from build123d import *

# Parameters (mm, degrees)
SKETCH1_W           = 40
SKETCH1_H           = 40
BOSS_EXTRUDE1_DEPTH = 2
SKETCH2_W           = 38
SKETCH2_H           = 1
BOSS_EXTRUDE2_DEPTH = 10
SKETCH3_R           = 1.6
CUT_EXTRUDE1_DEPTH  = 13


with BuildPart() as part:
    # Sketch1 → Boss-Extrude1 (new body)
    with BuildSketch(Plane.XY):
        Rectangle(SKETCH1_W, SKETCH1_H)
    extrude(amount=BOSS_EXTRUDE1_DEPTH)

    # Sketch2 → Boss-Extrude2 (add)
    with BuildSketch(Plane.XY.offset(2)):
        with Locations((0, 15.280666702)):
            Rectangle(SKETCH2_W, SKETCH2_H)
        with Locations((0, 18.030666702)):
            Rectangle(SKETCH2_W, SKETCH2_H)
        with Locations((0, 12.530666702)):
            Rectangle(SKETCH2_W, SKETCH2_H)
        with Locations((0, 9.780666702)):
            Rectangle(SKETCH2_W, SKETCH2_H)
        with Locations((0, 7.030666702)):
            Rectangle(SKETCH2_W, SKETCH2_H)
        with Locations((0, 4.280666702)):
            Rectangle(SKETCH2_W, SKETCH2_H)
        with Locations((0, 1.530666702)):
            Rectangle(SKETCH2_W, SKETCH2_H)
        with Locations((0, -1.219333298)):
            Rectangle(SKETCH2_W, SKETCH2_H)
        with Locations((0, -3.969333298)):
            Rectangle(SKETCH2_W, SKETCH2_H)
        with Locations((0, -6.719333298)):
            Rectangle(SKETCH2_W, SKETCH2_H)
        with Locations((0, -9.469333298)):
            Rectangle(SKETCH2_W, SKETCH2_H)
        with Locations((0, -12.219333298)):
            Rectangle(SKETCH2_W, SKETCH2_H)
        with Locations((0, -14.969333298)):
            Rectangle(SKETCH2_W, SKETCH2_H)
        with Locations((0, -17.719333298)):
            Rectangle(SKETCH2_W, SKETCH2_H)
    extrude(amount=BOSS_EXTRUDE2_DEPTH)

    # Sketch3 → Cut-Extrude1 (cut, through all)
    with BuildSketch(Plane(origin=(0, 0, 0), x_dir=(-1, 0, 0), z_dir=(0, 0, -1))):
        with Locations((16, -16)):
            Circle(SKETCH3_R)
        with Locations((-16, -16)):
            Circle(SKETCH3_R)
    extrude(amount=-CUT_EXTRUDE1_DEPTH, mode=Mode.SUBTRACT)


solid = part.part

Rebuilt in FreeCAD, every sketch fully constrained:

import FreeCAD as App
import Part
import Sketcher
Q = App.Units.Quantity


def add_polygon(sketch, points):
    """Adds a closed chain of lines whose ends are joined by coincident constraints."""
    first, n = sketch.GeometryCount, len(points)
    for a, b in zip(points, points[1:] + points[:1]):
        sketch.addGeometry(Part.LineSegment(App.Vector(*a, 0), App.Vector(*b, 0)), False)
    for i in range(n):
        sketch.addConstraint(Sketcher.Constraint("Coincident", first + i, 2, first + (i + 1) % n, 1))

doc = App.newDocument("Part")
params = doc.addObject("Spreadsheet::Sheet", "Params")
for row, (alias, value) in enumerate([
    ("sketch1_width", "40 mm"),
    ("pad1_length", "2 mm"),
    ("sketch2_width", "38 mm"),
    ("sketch2_height", "1 mm"),
    ("pad2_length", "10 mm"),
    ("sketch3_diameter", "3.2 mm"),
], start=1):
    params.set(f"A{row}", alias)
    params.set(f"B{row}", "=" + value)
    params.setAlias(f"B{row}", alias)

body = doc.addObject("PartDesign::Body", "Body")

# Sketch on XY plane
sketch1 = doc.addObject("Sketcher::SketchObject", "Sketch")
body.addObject(sketch1)
sketch1.AttachmentSupport = (doc.XY_Plane, [""])
sketch1.MapMode = "FlatFace"
add_polygon(sketch1, [(-20, 20), (-20, -20), (20, -20), (20, 20)])  # lines 0-3
sketch1.addConstraint([
    Sketcher.Constraint("Vertical", 0),
    Sketcher.Constraint("Horizontal", 1),
    Sketcher.Constraint("Vertical", 2),
    Sketcher.Constraint("Horizontal", 3),
    Sketcher.Constraint("Symmetric", 0, 2, 2, 2, -1, 1),
    Sketcher.Constraint("Equal", 3, 0),
    Sketcher.Constraint("DistanceX", 1, 1, 1, 2, Q("40 mm")),
])
sketch1.setExpression("Constraints[10]", "Params.sketch1_width")
pad1 = doc.addObject("PartDesign::Pad", "Pad")
body.addObject(pad1)
pad1.Profile = sketch1
pad1.setExpression("Length", "Params.pad1_length")

# Sketch on XY plane
sketch2 = doc.addObject("Sketcher::SketchObject", "Sketch001")
body.addObject(sketch2)
sketch2.AttachmentSupport = (doc.XY_Plane, [""])
sketch2.MapMode = "FlatFace"
sketch2.AttachmentOffset = App.Placement(App.Vector(0, 0, 2), App.Rotation())
add_polygon(sketch2, [(-19, 15.8), (-19, 14.8), (19, 14.8), (19, 15.8)])  # lines 0-3
add_polygon(sketch2, [(-19, 18.5), (-19, 17.5), (19, 17.5), (19, 18.5)])  # lines 4-7
add_polygon(sketch2, [(-19, 13), (-19, 12), (19, 12), (19, 13)])  # lines 8-11
add_polygon(sketch2, [(-19, 10.3), (-19, 9.3), (19, 9.3), (19, 10.3)])  # lines 12-15
add_polygon(sketch2, [(-19, 7.5), (-19, 6.5), (19, 6.5), (19, 7.5)])  # lines 16-19
add_polygon(sketch2, [(-19, 4.8), (-19, 3.8), (19, 3.8), (19, 4.8)])  # lines 20-23
add_polygon(sketch2, [(-19, 2), (-19, 1), (19, 1), (19, 2)])  # lines 24-27
add_polygon(sketch2, [(-19, -0.7), (-19, -1.7), (19, -1.7), (19, -0.7)])  # lines 28-31
add_polygon(sketch2, [(-19, -3.5), (-19, -4.5), (19, -4.5), (19, -3.5)])  # lines 32-35
add_polygon(sketch2, [(-19, -6.2), (-19, -7.2), (19, -7.2), (19, -6.2)])  # lines 36-39
add_polygon(sketch2, [(-19, -9), (-19, -10), (19, -10), (19, -9)])  # lines 40-43
add_polygon(sketch2, [(-19, -11.7), (-19, -12.7), (19, -12.7), (19, -11.7)])  # lines 44-47
add_polygon(sketch2, [(-19, -14.5), (-19, -15.5), (19, -15.5), (19, -14.5)])  # lines 48-51
add_polygon(sketch2, [(-19, -17.2), (-19, -18.2), (19, -18.2), (19, -17.2)])  # lines 52-55
sketch2.addConstraint([
    Sketcher.Constraint("Vertical", 0),
    Sketcher.Constraint("Horizontal", 1),
    Sketcher.Constraint("Vertical", 2),
    Sketcher.Constraint("Horizontal", 3),
    Sketcher.Constraint("Vertical", 4),
    Sketcher.Constraint("Horizontal", 5),
    Sketcher.Constraint("Vertical", 6),
    Sketcher.Constraint("Horizontal", 7),
    Sketcher.Constraint("Vertical", 8),
    Sketcher.Constraint("Horizontal", 9),
    Sketcher.Constraint("Vertical", 10),
    Sketcher.Constraint("Horizontal", 11),
    Sketcher.Constraint("Vertical", 12),
    Sketcher.Constraint("Horizontal", 13),
    Sketcher.Constraint("Vertical", 14),
    Sketcher.Constraint("Horizontal", 15),
    Sketcher.Constraint("Vertical", 16),
    Sketcher.Constraint("Horizontal", 17),
    Sketcher.Constraint("Vertical", 18),
    Sketcher.Constraint("Horizontal", 19),
    Sketcher.Constraint("Vertical", 20),
    Sketcher.Constraint("Horizontal", 21),
    Sketcher.Constraint("Vertical", 22),
    Sketcher.Constraint("Horizontal", 23),
    Sketcher.Constraint("Vertical", 24),
    Sketcher.Constraint("Horizontal", 25),
    Sketcher.Constraint("Vertical", 26),
    Sketcher.Constraint("Horizontal", 27),
    Sketcher.Constraint("Vertical", 28),
    Sketcher.Constraint("Horizontal", 29),
    Sketcher.Constraint("Vertical", 30),
    Sketcher.Constraint("Horizontal", 31),
    Sketcher.Constraint("Vertical", 32),
    Sketcher.Constraint("Horizontal", 33),
    Sketcher.Constraint("Vertical", 34),
    Sketcher.Constraint("Horizontal", 35),
    Sketcher.Constraint("Vertical", 36),
    Sketcher.Constraint("Horizontal", 37),
    Sketcher.Constraint("Vertical", 38),
    Sketcher.Constraint("Horizontal", 39),
    Sketcher.Constraint("Vertical", 40),
    Sketcher.Constraint("Horizontal", 41),
    Sketcher.Constraint("Vertical", 42),
    Sketcher.Constraint("Horizontal", 43),
    Sketcher.Constraint("Vertical", 44),
    Sketcher.Constraint("Horizontal", 45),
    Sketcher.Constraint("Vertical", 46),
    Sketcher.Constraint("Horizontal", 47),
    Sketcher.Constraint("Vertical", 48),
    Sketcher.Constraint("Horizontal", 49),
    Sketcher.Constraint("Vertical", 50),
    Sketcher.Constraint("Horizontal", 51),
    Sketcher.Constraint("Vertical", 52),
    Sketcher.Constraint("Horizontal", 53),
    Sketcher.Constraint("Vertical", 54),
    Sketcher.Constraint("Horizontal", 55),
    Sketcher.Constraint("Vertical", 3, 2, 4, 2),
    Sketcher.Constraint("Vertical", 2, 2, 5, 2),
    Sketcher.Constraint("Vertical", 7, 2, 8, 2),
    Sketcher.Constraint("Vertical", 6, 2, 9, 2),
    Sketcher.Constraint("Vertical", 11, 2, 12, 2),
    Sketcher.Constraint("Vertical", 10, 2, 13, 2),
    Sketcher.Constraint("Vertical", 15, 2, 16, 2),
    Sketcher.Constraint("Vertical", 14, 2, 17, 2),
    Sketcher.Constraint("Vertical", 19, 2, 20, 2),
    Sketcher.Constraint("Vertical", 18, 2, 21, 2),
    Sketcher.Constraint("Vertical", 23, 2, 24, 2),
    Sketcher.Constraint("Vertical", 22, 2, 25, 2),
    Sketcher.Constraint("Vertical", 27, 2, 28, 2),
    Sketcher.Constraint("Vertical", 26, 2, 29, 2),
    Sketcher.Constraint("Vertical", 31, 2, 32, 2),
    Sketcher.Constraint("Vertical", 30, 2, 33, 2),
    Sketcher.Constraint("Vertical", 35, 2, 36, 2),
    Sketcher.Constraint("Vertical", 34, 2, 37, 2),
    Sketcher.Constraint("Vertical", 39, 2, 40, 2),
    Sketcher.Constraint("Vertical", 38, 2, 41, 2),
    Sketcher.Constraint("Vertical", 43, 2, 44, 2),
    Sketcher.Constraint("Vertical", 42, 2, 45, 2),
    Sketcher.Constraint("Vertical", 47, 2, 48, 2),
    Sketcher.Constraint("Vertical", 46, 2, 49, 2),
    Sketcher.Constraint("Vertical", 51, 2, 52, 2),
    Sketcher.Constraint("Vertical", 50, 2, 53, 2),
    Sketcher.Constraint("Equal", 2, 4),
    Sketcher.Constraint("Equal", 6, 8),
    Sketcher.Constraint("Equal", 10, 12),
    Sketcher.Constraint("Equal", 14, 16),
    Sketcher.Constraint("Equal", 18, 20),
    Sketcher.Constraint("Equal", 22, 24),
    Sketcher.Constraint("Equal", 26, 28),
    Sketcher.Constraint("Equal", 30, 32),
    Sketcher.Constraint("Equal", 34, 36),
    Sketcher.Constraint("Equal", 38, 40),
    Sketcher.Constraint("Equal", 42, 44),
    Sketcher.Constraint("Equal", 46, 48),
    Sketcher.Constraint("Equal", 50, 52),
    Sketcher.Constraint("DistanceX", 1, 1, 1, 2, Q("38 mm")),
    Sketcher.Constraint("DistanceY", 0, 2, 0, 1, Q("1 mm")),
    Sketcher.Constraint("DistanceX", 0, 2, -1, 1, Q("19 mm")),
    Sketcher.Constraint("DistanceY", 8, 2, 4, 2, Q("5.5 mm")),
    Sketcher.Constraint("DistanceY", 12, 2, 0, 2, Q("5.5 mm")),
    Sketcher.Constraint("DistanceY", 16, 2, 8, 2, Q("5.5 mm")),
    Sketcher.Constraint("DistanceY", 20, 2, 12, 2, Q("5.5 mm")),
    Sketcher.Constraint("DistanceY", 24, 2, 16, 2, Q("5.5 mm")),
    Sketcher.Constraint("DistanceY", 28, 2, 20, 2, Q("5.5 mm")),
    Sketcher.Constraint("DistanceY", 32, 2, 24, 2, Q("5.5 mm")),
    Sketcher.Constraint("DistanceY", 36, 2, 28, 2, Q("5.5 mm")),
    Sketcher.Constraint("DistanceY", 40, 2, 32, 2, Q("5.5 mm")),
    Sketcher.Constraint("DistanceY", 44, 2, 36, 2, Q("5.5 mm")),
    Sketcher.Constraint("DistanceY", 48, 2, 40, 2, Q("5.5 mm")),
    Sketcher.Constraint("DistanceY", 52, 2, 44, 2, Q("5.5 mm")),
    Sketcher.Constraint("DistanceY", 3, 2, 4, 2, Q("1.75 mm")),
    Sketcher.Constraint("DistanceY", -1, 1, 0, 2, Q("14.780667 mm")),
])
sketch2.setExpression("Constraints[151]", "Params.sketch2_width")
sketch2.setExpression("Constraints[152]", "Params.sketch2_height")
pad2 = doc.addObject("PartDesign::Pad", "Pad001")
body.addObject(pad2)
pad2.Profile = sketch2
pad2.setExpression("Length", "Params.pad2_length")

# Sketch on XY plane
sketch3 = doc.addObject("Sketcher::SketchObject", "Sketch002")
body.addObject(sketch3)
sketch3.AttachmentSupport = (doc.XY_Plane, [""])
sketch3.MapMode = "FlatFace"
sketch3.addGeometry([
    Part.Circle(App.Vector(-16, -16, 0), App.Vector(0, 0, 1), 1.6),
    Part.Circle(App.Vector(16, -16, 0), App.Vector(0, 0, 1), 1.6),
], False)
sketch3.addConstraint([
    Sketcher.Constraint("Equal", 0, 1),
    Sketcher.Constraint("Symmetric", 0, 3, 1, 3, -2),
    Sketcher.Constraint("Diameter", 0, Q("3.2 mm")),
    Sketcher.Constraint("DistanceX", 0, 3, -1, 1, Q("16 mm")),
    Sketcher.Constraint("DistanceY", 0, 3, -1, 1, Q("16 mm")),
])
sketch3.setExpression("Constraints[2]", "Params.sketch3_diameter")
pocket1 = doc.addObject("PartDesign::Pocket", "Pocket")
body.addObject(pocket1)
pocket1.Profile = sketch3
pocket1.Type = "ThroughAll"
pocket1.Reversed = True

doc.recompute()
